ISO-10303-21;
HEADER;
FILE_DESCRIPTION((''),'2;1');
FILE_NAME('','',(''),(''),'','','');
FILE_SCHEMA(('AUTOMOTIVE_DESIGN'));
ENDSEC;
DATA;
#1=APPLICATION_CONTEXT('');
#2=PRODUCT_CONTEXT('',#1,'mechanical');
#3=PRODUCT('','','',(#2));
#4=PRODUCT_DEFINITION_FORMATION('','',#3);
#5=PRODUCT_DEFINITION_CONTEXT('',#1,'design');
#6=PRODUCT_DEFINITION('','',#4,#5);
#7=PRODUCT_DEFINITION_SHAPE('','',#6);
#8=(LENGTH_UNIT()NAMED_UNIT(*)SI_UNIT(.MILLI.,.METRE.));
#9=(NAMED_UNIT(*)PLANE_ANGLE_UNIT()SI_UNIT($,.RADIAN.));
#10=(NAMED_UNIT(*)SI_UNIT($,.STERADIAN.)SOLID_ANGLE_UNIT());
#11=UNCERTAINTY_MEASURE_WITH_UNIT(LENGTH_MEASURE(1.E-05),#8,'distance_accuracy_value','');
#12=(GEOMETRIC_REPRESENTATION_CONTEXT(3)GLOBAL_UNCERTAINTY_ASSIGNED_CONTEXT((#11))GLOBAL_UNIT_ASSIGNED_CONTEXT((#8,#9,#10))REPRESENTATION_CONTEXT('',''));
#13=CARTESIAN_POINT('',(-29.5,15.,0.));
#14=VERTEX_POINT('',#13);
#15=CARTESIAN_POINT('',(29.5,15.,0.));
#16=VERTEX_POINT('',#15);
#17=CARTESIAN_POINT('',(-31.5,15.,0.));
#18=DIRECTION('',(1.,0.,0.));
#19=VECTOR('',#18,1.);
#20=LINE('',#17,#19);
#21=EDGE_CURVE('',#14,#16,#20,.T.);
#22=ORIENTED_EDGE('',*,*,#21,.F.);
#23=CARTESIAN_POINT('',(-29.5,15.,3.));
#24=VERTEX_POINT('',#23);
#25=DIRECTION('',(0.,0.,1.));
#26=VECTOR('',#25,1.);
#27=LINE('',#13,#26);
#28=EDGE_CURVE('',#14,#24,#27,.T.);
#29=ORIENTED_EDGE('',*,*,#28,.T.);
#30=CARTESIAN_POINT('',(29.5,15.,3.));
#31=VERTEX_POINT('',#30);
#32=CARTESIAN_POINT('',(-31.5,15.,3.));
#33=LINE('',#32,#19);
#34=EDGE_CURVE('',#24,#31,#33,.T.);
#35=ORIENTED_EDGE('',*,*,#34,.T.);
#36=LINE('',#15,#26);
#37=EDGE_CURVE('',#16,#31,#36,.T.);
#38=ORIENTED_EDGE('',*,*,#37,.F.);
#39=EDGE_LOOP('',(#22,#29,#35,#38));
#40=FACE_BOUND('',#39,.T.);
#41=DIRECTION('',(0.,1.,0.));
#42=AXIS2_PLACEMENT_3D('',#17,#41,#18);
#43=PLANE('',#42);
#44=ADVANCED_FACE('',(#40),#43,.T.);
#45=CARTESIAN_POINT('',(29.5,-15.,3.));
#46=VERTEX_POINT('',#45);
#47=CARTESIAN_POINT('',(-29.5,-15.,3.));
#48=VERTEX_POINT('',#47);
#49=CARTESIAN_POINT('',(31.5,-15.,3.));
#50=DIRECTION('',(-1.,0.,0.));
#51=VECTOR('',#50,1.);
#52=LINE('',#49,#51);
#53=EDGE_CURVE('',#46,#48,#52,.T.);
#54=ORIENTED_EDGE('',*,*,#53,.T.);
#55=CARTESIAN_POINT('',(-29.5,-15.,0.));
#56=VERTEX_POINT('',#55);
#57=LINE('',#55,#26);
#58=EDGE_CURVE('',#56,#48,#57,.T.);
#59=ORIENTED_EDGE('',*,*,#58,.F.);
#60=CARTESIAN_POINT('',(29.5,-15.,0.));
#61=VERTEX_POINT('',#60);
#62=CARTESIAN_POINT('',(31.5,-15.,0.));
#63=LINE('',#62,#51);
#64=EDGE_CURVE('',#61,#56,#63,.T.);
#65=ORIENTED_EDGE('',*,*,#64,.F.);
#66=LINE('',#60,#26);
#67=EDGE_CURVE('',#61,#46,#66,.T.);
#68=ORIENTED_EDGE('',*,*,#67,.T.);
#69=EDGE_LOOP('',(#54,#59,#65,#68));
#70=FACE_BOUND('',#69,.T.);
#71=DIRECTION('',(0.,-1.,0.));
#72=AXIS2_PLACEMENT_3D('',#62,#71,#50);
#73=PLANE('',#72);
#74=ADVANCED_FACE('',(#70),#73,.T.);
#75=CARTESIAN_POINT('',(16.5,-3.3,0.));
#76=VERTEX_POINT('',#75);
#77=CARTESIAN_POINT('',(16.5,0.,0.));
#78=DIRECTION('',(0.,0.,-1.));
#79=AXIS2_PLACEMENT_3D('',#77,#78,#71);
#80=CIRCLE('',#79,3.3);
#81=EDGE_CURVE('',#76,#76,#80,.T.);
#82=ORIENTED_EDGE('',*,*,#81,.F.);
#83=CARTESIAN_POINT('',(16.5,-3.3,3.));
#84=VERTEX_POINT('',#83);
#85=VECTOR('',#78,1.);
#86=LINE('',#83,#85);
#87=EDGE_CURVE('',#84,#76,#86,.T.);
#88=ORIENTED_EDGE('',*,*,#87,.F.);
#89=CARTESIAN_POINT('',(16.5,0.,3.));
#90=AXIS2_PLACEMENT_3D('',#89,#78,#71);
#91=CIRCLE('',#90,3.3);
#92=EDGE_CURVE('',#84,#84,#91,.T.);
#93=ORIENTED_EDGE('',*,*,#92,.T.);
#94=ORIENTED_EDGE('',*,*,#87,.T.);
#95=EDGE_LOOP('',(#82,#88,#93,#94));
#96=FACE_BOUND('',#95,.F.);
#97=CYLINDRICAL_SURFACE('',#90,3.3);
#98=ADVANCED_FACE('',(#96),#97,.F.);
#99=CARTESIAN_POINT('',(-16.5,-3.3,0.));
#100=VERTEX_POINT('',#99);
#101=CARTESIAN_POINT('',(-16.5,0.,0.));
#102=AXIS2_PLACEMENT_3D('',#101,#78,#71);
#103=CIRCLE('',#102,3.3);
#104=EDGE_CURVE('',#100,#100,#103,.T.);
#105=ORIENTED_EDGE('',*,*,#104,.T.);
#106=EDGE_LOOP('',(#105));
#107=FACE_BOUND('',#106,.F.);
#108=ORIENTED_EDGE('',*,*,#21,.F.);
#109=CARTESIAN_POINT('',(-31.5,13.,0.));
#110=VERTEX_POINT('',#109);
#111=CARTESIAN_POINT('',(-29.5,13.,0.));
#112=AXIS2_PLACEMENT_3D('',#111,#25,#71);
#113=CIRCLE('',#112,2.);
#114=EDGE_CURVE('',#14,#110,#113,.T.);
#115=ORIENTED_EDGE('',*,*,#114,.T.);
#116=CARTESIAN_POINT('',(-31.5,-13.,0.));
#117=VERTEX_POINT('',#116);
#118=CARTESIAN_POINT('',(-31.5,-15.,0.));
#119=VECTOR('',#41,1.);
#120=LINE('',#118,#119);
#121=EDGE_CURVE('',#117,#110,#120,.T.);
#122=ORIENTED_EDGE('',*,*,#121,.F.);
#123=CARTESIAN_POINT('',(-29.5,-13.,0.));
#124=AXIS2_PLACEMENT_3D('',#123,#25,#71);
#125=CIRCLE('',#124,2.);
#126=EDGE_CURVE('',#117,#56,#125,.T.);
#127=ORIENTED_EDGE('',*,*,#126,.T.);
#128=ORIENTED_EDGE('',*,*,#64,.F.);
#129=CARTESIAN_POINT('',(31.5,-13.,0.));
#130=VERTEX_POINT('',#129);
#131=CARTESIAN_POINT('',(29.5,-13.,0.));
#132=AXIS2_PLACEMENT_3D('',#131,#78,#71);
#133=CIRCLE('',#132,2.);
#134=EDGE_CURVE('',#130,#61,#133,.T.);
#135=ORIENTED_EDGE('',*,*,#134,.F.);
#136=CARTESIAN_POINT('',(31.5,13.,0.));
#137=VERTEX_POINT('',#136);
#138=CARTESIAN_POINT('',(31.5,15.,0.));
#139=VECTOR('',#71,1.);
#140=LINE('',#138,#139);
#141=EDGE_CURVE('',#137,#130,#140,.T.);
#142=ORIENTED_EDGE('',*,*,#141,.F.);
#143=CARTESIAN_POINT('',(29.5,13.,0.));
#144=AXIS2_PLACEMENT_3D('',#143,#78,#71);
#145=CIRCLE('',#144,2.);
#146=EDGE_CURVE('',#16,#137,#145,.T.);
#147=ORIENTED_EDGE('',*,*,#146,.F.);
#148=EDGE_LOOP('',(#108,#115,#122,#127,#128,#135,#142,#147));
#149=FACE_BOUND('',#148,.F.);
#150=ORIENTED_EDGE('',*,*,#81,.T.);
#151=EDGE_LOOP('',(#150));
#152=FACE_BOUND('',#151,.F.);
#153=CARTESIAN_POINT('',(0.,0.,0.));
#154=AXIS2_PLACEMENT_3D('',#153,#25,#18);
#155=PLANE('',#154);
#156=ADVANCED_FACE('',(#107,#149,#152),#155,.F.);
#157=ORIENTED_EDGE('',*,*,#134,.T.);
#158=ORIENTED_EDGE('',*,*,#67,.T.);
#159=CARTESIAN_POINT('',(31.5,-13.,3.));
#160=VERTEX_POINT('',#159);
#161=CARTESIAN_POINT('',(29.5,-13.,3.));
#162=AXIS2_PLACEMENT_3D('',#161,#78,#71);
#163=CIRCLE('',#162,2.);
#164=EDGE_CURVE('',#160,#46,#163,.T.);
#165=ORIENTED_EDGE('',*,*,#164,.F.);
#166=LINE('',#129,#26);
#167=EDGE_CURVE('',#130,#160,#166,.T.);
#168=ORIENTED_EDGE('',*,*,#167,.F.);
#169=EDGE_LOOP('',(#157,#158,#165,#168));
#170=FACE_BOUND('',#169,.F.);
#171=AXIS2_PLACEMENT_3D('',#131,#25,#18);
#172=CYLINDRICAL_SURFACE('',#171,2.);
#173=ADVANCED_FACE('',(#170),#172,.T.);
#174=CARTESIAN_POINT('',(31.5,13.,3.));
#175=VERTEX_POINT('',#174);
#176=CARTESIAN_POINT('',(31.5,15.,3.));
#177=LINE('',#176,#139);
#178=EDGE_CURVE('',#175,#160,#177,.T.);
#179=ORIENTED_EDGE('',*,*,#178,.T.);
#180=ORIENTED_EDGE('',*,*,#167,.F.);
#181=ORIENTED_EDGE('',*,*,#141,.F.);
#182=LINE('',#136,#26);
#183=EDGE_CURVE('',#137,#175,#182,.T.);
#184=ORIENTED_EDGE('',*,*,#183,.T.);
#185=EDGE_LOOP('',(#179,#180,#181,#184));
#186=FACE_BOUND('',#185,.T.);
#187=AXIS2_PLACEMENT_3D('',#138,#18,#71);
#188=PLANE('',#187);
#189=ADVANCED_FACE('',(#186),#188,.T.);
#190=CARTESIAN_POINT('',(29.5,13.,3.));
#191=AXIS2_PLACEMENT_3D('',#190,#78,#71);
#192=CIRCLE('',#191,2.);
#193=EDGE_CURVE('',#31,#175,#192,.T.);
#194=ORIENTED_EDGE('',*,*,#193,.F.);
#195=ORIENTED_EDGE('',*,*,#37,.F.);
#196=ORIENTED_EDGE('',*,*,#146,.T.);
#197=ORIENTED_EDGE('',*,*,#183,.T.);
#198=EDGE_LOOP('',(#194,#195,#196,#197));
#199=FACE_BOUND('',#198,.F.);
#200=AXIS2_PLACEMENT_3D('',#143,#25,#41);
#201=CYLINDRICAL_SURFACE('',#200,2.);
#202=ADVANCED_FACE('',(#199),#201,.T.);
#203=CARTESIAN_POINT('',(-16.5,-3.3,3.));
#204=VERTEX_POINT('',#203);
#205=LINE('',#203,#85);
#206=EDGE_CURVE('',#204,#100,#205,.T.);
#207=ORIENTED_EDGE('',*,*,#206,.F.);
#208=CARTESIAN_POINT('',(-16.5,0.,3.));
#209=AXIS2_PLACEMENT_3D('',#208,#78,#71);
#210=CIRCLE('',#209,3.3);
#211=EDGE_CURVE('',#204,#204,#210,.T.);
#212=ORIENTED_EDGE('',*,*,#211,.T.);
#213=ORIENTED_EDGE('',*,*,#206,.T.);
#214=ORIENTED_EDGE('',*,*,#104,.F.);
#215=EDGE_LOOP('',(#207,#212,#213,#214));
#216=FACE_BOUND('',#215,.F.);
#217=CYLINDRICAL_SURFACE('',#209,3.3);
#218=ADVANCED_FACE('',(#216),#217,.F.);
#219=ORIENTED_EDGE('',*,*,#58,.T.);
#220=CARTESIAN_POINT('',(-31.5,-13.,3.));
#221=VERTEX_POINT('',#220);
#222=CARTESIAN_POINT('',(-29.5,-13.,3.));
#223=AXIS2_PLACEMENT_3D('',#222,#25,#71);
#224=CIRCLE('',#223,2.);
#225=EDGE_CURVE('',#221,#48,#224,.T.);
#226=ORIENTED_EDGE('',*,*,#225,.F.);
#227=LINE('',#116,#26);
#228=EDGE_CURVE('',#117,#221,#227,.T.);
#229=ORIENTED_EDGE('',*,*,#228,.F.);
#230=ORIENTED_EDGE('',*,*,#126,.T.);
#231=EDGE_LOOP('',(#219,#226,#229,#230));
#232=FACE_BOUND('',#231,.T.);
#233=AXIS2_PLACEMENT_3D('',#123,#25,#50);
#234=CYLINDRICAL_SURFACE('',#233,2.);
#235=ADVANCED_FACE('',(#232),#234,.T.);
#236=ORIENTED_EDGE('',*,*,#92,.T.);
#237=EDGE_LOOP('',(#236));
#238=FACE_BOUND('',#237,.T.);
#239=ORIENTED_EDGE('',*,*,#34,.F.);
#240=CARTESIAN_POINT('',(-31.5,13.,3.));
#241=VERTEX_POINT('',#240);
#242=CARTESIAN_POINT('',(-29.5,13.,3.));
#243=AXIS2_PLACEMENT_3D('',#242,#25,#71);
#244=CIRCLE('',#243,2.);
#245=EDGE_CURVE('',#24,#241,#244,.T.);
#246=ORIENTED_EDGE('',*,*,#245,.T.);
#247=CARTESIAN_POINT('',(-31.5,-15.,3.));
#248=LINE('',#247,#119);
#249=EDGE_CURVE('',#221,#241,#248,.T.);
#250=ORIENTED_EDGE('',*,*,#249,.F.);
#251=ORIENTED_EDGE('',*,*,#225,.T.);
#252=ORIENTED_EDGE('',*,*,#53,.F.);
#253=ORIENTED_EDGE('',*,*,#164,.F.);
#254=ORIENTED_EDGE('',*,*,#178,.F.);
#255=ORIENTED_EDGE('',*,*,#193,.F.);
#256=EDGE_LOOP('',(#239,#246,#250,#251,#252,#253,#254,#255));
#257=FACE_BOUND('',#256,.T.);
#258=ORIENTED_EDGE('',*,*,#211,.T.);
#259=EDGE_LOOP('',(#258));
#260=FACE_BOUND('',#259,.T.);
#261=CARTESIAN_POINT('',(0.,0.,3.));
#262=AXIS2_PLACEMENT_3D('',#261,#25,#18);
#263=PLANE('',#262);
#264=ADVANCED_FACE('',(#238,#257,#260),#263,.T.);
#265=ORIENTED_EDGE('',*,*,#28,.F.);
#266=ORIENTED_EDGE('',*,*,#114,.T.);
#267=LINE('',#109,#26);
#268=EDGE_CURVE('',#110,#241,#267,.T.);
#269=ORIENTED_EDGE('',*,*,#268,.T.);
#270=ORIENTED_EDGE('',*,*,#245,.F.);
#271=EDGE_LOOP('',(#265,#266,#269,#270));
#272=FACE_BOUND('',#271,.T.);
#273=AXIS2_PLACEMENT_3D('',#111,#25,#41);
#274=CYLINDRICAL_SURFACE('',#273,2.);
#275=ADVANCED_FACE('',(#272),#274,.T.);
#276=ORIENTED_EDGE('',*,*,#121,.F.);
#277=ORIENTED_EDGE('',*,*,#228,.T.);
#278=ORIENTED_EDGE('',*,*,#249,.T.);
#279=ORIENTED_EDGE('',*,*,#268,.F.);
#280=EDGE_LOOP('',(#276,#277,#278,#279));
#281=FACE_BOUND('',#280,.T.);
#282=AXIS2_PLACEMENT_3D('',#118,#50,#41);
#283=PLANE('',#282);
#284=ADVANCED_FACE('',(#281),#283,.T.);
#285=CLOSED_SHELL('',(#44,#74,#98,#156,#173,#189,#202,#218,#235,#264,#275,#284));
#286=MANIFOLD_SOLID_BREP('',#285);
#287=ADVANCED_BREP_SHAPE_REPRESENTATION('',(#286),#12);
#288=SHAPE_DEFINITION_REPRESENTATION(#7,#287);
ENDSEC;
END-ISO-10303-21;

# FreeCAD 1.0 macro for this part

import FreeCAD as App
import Part
import Sketcher
from FreeCAD import Vector


def edges_at(feature, points):
    """Names of the edges that pass closest to the given points."""
    edges = feature.Shape.Edges
    near = lambda p: min(range(len(edges)), key=lambda i: edges[i].distToShape(Part.Vertex(*p))[0])
    return sorted({f"Edge{near(p) + 1}" for p in points})

doc = App.newDocument("Part")
body = doc.addObject("PartDesign::Body", "Body")

sketch1 = doc.addObject("Sketcher::SketchObject", "Sketch")
body.addObject(sketch1)
sketch1.AttachmentSupport = (doc.XY_Plane, [""])
sketch1.MapMode = "FlatFace"
sketch1.addGeometry([
    Part.LineSegment(Vector(31.5, 15, 0), Vector(-31.5, 15, 0)),
    Part.LineSegment(Vector(-31.5, 15, 0), Vector(-31.5, -15, 0)),
    Part.LineSegment(Vector(-31.5, -15, 0), Vector(31.5, -15, 0)),
    Part.LineSegment(Vector(31.5, -15, 0), Vector(31.5, 15, 0)),
], False)
sketch1.addConstraint([
    Sketcher.Constraint("Coincident", 0, 2, 1, 1),
    Sketcher.Constraint("Coincident", 1, 2, 2, 1),
    Sketcher.Constraint("Coincident", 2, 2, 3, 1),
    Sketcher.Constraint("Coincident", 3, 2, 0, 1),
    Sketcher.Constraint("Horizontal", 0),
    Sketcher.Constraint("Vertical", 1),
    Sketcher.Constraint("Horizontal", 2),
    Sketcher.Constraint("Vertical", 3),
    Sketcher.Constraint("Symmetric", 0, 2, 2, 2, -1, 1),
    Sketcher.Constraint("DistanceX", 0, 2, 0, 1, 63.0),
    Sketcher.Constraint("DistanceY", 1, 2, 1, 1, 30.0),
])
pad1 = doc.addObject("PartDesign::Pad", "Pad")
body.addObject(pad1)
pad1.Profile = sketch1
pad1.Length = 3

sketch2 = doc.addObject("Sketcher::SketchObject", "Sketch001")
body.addObject(sketch2)
sketch2.AttachmentSupport = (doc.XY_Plane, [""])
sketch2.MapMode = "FlatFace"
sketch2.AttachmentOffset = App.Placement(Vector(0, 0, 3), App.Rotation())
sketch2.addGeometry([
    Part.Circle(Vector(-16.5, 0, 0), Vector(0, 0, 1), 3.3),
    Part.Circle(Vector(16.5, 0, 0), Vector(0, 0, 1), 3.3),
], False)
sketch2.addConstraint([
    Sketcher.Constraint("Equal", 0, 1),
    Sketcher.Constraint("Symmetric", 0, 3, 1, 3, -1, 1),
    Sketcher.Constraint("PointOnObject", 0, 3, -1),
    Sketcher.Constraint("Diameter", 0, 6.6),
    Sketcher.Constraint("DistanceX", 0, 3, 1, 3, 33.0),
])
doc.recompute()
hole = doc.addObject("PartDesign::Hole", "Hole")
body.addObject(hole)
hole.Profile = sketch2
hole.ThreadType = "None"
hole.Diameter = 6.6
hole.DepthType = "ThroughAll"
doc.recompute()

fillet = doc.addObject("PartDesign::Fillet", "Fillet")
body.addObject(fillet)
fillet.Base = (hole, edges_at(hole, [
    (-31.5, 15, 1.5),
    (31.5, 15, 1.5),
    (31.5, -15, 1.5),
    (-31.5, -15, 1.5),
]))
fillet.Radius = 2

doc.recompute()
